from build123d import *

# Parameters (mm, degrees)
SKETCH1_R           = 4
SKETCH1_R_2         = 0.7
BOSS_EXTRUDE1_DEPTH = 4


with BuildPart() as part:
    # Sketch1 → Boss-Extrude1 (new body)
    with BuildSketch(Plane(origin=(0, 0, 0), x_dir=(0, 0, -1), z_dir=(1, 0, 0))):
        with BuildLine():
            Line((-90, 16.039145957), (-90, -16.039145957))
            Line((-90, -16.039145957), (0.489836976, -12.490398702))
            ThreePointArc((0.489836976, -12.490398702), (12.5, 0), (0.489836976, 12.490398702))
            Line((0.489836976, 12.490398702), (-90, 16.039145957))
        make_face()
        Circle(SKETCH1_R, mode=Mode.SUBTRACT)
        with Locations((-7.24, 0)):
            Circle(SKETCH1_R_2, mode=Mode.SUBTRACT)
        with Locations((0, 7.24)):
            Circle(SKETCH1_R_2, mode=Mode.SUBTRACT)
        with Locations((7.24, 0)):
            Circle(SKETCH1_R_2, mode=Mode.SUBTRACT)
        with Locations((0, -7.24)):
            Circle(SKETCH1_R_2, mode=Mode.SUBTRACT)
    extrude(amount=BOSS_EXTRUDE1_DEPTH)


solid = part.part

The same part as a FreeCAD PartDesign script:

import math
import FreeCAD as App
import Part
import Sketcher
from FreeCAD import Vector
Q = App.Units.Quantity

doc = App.newDocument("Part")
body = doc.addObject("PartDesign::Body", "Body")

sketch1 = body.newObject("Sketcher::SketchObject", "Sketch")
sketch1.AttachmentSupport = (doc.getObject("YZ_Plane"), [""])
sketch1.MapMode = "FlatFace"
sketch1.addGeometry(Part.LineSegment(Vector(16, 90, 0), Vector(-16, 90, 0)), False)
sketch1.addGeometry(Part.LineSegment(Vector(-16, 90, 0), Vector(-12.5, -0.5, 0)), False)
sketch1.addGeometry(Part.ArcOfCircle(Part.Circle(Vector(0, 0, 0), Vector(0, 0, 1), 12.5), math.radians(-178), math.radians(-2)), False)
sketch1.addGeometry(Part.LineSegment(Vector(12.5, -0.5, 0), Vector(16, 90, 0)), False)
sketch1.addGeometry(Part.Circle(Vector(-7.2, 0, 0), Vector(0, 0, 1), 0.7), False)
sketch1.addGeometry(Part.Circle(Vector(0, 7.2, 0), Vector(0, 0, 1), 0.7), False)
sketch1.addGeometry(Part.Circle(Vector(0, 0, 0), Vector(0, 0, 1), 4), False)
sketch1.addGeometry(Part.Circle(Vector(0, -7.2, 0), Vector(0, 0, 1), 0.7), False)
sketch1.addGeometry(Part.Circle(Vector(7.2, 0, 0), Vector(0, 0, 1), 0.7), False)
sketch1.addConstraint(Sketcher.Constraint("Coincident", 0, 2, 1, 1))
sketch1.addConstraint(Sketcher.Constraint("Tangent", 1, 2, 2, 1))
sketch1.addConstraint(Sketcher.Constraint("Tangent", 2, 2, 3, 1))
sketch1.addConstraint(Sketcher.Constraint("Coincident", 3, 2, 0, 1))
sketch1.addConstraint(Sketcher.Constraint("Horizontal", 0))
sketch1.addConstraint(Sketcher.Constraint("Coincident", 2, 3, -1, 1))
sketch1.addConstraint(Sketcher.Constraint("Coincident", 6, 3, -1, 1))
sketch1.addConstraint(Sketcher.Constraint("Equal", 4, 5))
sketch1.addConstraint(Sketcher.Constraint("Equal", 5, 7))
sketch1.addConstraint(Sketcher.Constraint("Equal", 7, 8))
sketch1.addConstraint(Sketcher.Constraint("Symmetric", 5, 3, 7, 3, -1, 1))
sketch1.addConstraint(Sketcher.Constraint("Symmetric", 4, 3, 8, 3, -1, 1))
sketch1.addConstraint(Sketcher.Constraint("PointOnObject", 4, 3, -1))
sketch1.addConstraint(Sketcher.Constraint("PointOnObject", 5, 3, -2))
sketch1.addConstraint(Sketcher.Constraint("Horizontal", 1, 2, 2, 2))
sketch1.addConstraint(Sketcher.Constraint("Diameter", 6, Q("8 mm")))
sketch1.addConstraint(Sketcher.Constraint("Diameter", 4, Q("1.4 mm")))
sketch1.addConstraint(Sketcher.Constraint("Radius", 2, Q("12.5 mm")))
sketch1.addConstraint(Sketcher.Constraint("DistanceY", -1, 1, 0, 2, Q("90 mm")))
sketch1.addConstraint(Sketcher.Constraint("DistanceX", 4, 3, -1, 1, Q("7.24 mm")))
sketch1.addConstraint(Sketcher.Constraint("DistanceY", -1, 1, 5, 3, Q("7.24 mm")))
sketch1.addConstraint(Sketcher.Constraint("DistanceX", 0, 2, 0, 1, Q("32.078292 mm")))
pad1 = body.newObject("PartDesign::Pad", "Pad")
pad1.Profile = sketch1
pad1.Length = 4

doc.recompute()
